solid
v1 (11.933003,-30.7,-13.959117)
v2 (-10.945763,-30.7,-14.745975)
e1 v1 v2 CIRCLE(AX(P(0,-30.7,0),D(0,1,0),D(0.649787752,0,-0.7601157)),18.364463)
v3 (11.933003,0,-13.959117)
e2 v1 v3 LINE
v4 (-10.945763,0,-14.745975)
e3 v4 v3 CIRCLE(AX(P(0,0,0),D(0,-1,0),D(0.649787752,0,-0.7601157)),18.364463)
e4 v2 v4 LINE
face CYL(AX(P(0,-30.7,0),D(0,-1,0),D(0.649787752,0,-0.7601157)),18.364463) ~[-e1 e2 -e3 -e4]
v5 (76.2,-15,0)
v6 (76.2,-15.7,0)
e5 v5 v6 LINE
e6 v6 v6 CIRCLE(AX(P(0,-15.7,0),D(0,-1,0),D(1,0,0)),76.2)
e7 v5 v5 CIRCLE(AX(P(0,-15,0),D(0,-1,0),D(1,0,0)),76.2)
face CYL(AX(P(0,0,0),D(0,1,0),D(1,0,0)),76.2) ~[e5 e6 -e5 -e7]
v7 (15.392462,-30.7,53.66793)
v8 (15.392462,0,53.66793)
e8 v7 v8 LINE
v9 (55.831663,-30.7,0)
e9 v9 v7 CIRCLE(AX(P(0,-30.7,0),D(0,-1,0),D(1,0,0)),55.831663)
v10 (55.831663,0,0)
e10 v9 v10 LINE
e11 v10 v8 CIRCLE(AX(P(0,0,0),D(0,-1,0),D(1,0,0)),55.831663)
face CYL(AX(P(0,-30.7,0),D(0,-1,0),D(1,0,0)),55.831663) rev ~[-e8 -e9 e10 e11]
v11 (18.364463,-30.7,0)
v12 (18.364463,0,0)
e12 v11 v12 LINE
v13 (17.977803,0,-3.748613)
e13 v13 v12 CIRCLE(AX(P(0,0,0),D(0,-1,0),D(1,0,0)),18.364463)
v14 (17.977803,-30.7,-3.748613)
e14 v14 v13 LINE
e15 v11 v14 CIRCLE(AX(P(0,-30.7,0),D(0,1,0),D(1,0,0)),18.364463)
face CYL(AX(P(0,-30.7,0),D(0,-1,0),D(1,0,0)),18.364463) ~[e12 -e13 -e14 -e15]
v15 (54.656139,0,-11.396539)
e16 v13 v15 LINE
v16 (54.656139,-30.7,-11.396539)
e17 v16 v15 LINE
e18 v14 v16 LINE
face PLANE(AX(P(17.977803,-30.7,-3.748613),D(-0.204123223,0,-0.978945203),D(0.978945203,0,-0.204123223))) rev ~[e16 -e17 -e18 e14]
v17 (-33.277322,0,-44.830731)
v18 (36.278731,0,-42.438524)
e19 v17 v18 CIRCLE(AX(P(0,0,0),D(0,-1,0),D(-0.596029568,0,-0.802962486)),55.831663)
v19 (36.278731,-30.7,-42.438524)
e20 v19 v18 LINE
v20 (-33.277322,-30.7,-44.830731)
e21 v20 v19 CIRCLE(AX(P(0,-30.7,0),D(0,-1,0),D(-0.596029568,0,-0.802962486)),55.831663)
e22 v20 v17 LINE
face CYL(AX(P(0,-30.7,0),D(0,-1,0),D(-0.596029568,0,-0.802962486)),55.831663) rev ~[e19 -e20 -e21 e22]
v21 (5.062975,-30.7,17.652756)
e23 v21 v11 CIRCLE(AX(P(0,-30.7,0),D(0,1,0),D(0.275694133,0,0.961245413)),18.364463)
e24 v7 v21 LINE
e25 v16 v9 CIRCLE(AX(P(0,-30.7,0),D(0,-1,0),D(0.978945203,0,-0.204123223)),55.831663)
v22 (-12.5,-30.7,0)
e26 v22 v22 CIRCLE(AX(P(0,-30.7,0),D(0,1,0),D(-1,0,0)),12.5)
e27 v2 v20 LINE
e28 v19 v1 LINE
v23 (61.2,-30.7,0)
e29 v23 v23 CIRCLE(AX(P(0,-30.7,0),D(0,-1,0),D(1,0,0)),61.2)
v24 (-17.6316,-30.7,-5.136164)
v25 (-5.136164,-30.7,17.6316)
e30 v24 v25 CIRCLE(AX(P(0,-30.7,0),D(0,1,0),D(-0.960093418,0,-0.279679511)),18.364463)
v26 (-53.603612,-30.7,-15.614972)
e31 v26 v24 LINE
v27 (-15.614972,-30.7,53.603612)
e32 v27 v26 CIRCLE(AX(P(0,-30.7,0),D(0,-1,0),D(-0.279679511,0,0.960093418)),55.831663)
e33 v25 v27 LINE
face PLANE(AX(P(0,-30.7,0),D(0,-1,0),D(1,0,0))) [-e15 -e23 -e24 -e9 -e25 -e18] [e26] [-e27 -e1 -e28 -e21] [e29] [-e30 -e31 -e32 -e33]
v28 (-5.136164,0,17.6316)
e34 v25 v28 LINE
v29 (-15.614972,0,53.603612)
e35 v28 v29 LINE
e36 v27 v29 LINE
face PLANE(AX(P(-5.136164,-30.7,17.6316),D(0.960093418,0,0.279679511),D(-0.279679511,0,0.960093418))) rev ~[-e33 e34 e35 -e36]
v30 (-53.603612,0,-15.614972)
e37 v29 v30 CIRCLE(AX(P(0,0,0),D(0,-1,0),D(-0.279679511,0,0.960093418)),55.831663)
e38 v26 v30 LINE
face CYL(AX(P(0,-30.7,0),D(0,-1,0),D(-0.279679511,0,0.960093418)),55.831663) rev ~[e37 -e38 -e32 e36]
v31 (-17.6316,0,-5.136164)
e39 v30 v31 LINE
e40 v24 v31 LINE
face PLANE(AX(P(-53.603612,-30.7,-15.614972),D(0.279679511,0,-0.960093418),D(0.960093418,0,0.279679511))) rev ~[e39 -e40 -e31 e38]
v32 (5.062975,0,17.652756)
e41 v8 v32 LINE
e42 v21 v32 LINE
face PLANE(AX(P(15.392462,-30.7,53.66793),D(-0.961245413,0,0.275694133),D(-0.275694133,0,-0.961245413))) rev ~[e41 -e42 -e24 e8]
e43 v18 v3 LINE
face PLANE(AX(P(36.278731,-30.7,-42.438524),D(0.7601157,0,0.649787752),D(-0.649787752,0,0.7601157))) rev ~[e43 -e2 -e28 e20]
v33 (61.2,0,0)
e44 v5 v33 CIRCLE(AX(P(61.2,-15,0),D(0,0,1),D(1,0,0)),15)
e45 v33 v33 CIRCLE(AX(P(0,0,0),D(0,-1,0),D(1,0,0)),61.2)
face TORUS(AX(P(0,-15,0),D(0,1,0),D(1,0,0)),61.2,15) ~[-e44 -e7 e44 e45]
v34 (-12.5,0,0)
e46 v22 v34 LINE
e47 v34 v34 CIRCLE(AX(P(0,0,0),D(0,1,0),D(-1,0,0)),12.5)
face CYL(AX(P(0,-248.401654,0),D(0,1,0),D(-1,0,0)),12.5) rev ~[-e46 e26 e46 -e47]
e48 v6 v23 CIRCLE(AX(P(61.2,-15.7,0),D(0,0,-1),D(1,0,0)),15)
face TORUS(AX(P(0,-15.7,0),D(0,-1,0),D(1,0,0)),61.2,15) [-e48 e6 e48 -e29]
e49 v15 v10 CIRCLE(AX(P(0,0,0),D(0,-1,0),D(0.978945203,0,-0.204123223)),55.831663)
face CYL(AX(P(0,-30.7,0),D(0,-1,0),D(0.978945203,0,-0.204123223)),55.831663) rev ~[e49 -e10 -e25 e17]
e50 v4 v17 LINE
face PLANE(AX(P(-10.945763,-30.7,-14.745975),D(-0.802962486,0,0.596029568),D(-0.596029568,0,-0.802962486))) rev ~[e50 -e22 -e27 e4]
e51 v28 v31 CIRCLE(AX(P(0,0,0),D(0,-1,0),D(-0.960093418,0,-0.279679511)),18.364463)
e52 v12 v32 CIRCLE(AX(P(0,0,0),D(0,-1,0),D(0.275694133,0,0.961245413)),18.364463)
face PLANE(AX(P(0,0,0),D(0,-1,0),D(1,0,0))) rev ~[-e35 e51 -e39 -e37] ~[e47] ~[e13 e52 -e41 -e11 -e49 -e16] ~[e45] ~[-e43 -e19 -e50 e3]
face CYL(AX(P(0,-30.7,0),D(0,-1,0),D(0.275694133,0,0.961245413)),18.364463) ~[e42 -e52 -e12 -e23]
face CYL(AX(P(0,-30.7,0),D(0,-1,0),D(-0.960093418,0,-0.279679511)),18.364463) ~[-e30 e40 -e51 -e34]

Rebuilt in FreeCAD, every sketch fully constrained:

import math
import FreeCAD as App
import Part
import Sketcher
from FreeCAD import Vector
Q = App.Units.Quantity


def edges_at(feature, points):
    """Names of the edges that pass closest to the given points."""
    edges = feature.Shape.Edges
    near = lambda p: min(range(len(edges)), key=lambda i: edges[i].distToShape(Part.Vertex(*p))[0])
    return sorted({f"Edge{near(p) + 1}" for p in points})

doc = App.newDocument("Part")
params = doc.addObject("Spreadsheet::Sheet", "Params")
for row, (alias, value) in enumerate([
    ("sketch1_diameter", "152.4 mm"),
    ("pad1_length", "30.7 mm"),
    ("sketch2_diameter", "25 mm"),
    ("hole_diameter", "25 mm"),
    ("pocket1_length", "50 mm"),
    ("fillet_radius", "15 mm"),
], start=1):
    params.set(f"A{row}", alias)
    params.set(f"B{row}", "=" + value)
    params.setAlias(f"B{row}", alias)

body = doc.addObject("PartDesign::Body", "Body")

sketch1 = body.newObject("Sketcher::SketchObject", "Sketch")
sketch1.AttachmentSupport = (doc.getObject("XZ_Plane"), [""])
sketch1.MapMode = "FlatFace"
sketch1.addGeometry(Part.Circle(Vector(0, 0, 0), Vector(0, 0, 1), 76), False)
sketch1.addConstraint([
    Sketcher.Constraint("Coincident", 0, 3, -1, 1),
    Sketcher.Constraint("Diameter", 0, Q("152.4 mm")),
])
sketch1.setExpression("Constraints[1]", "Params.sketch1_diameter")
pad1 = body.newObject("PartDesign::Pad", "Pad")
pad1.Profile = sketch1
pad1.setExpression("Length", "Params.pad1_length")

sketch2 = body.newObject("Sketcher::SketchObject", "Sketch001")
sketch2.AttachmentSupport = (doc.getObject("XZ_Plane"), [""])
sketch2.MapMode = "FlatFace"
sketch2.AttachmentOffset = App.Placement(Vector(0, 0, 30.7), App.Rotation())
sketch2.addGeometry(Part.Circle(Vector(0, 0, 0), Vector(0, 0, 1), 12), False)
sketch2.addConstraint([
    Sketcher.Constraint("Coincident", 0, 3, -1, 1),
    Sketcher.Constraint("Diameter", 0, Q("25 mm")),
])
sketch2.setExpression("Constraints[1]", "Params.sketch2_diameter")
doc.recompute()
hole = body.newObject("PartDesign::Hole", "Hole")
hole.Profile = sketch2
hole.ThreadType = "None"
hole.setExpression("Diameter", "Params.hole_diameter")
hole.DepthType = "ThroughAll"

sketch3 = body.newObject("Sketcher::SketchObject", "Sketch002")
sketch3.AttachmentSupport = (doc.getObject("XZ_Plane"), [""])
sketch3.MapMode = "FlatFace"
sketch3.AttachmentOffset = App.Placement(Vector(0, 0, 30.7), App.Rotation())
sketch3.addGeometry([
    Part.ArcOfCircle(Part.Circle(Vector(0, 0, 0), Vector(0, 0, 1), 18.4), math.radians(106), math.radians(196)),
    Part.LineSegment(Vector(-5.1, 17.6, 0), Vector(-15.6, 53.6, 0)),
    Part.ArcOfCircle(Part.Circle(Vector(0, 0, 0), Vector(0, 0, 1), 55.8), math.radians(106), math.radians(196)),
    Part.LineSegment(Vector(-53.6, -15.6, 0), Vector(-17.6, -5.1, 0)),
    Part.LineSegment(Vector(15.4, 53.7, 0), Vector(5.1, 17.7, 0)),
    Part.ArcOfCircle(Part.Circle(Vector(0, 0, 0), Vector(0, 0, 1), 18.4), math.radians(0), math.radians(74)),
    Part.ArcOfCircle(Part.Circle(Vector(0, 0, 0), Vector(0, 0, 1), 18.4), math.radians(-11.78), math.radians(0)),
    Part.LineSegment(Vector(18, -3.7, 0), Vector(54.7, -11.4, 0)),
    Part.ArcOfCircle(Part.Circle(Vector(0, 0, 0), Vector(0, 0, 1), 55.8), math.radians(-11.78), math.radians(0)),
    Part.ArcOfCircle(Part.Circle(Vector(0, 0, 0), Vector(0, 0, 1), 55.8), math.radians(0), math.radians(74)),
    Part.LineSegment(Vector(36.3, -42.4, 0), Vector(11.9, -14, 0)),
    Part.ArcOfCircle(Part.Circle(Vector(0, 0, 0), Vector(0, 0, 1), 18.4), math.radians(-127), math.radians(-49)),
    Part.LineSegment(Vector(-10.9, -14.7, 0), Vector(-33.3, -44.8, 0)),
    Part.ArcOfCircle(Part.Circle(Vector(0, 0, 0), Vector(0, 0, 1), 55.8), math.radians(-127), math.radians(-49)),
], False)
sketch3.addConstraint([
    Sketcher.Constraint("Coincident", 0, 1, 1, 1),
    Sketcher.Constraint("Coincident", 1, 2, 2, 1),
    Sketcher.Constraint("Coincident", 2, 2, 3, 1),
    Sketcher.Constraint("Coincident", 3, 2, 0, 2),
    Sketcher.Constraint("Coincident", 4, 2, 5, 2),
    Sketcher.Constraint("Tangent", 5, 1, 6, 2),
    Sketcher.Constraint("Coincident", 6, 1, 7, 1),
    Sketcher.Constraint("Coincident", 7, 2, 8, 1),
    Sketcher.Constraint("Tangent", 8, 2, 9, 1),
    Sketcher.Constraint("Coincident", 9, 2, 4, 1),
    Sketcher.Constraint("Coincident", 10, 2, 11, 2),
    Sketcher.Constraint("Coincident", 11, 1, 12, 1),
    Sketcher.Constraint("Coincident", 12, 2, 13, 1),
    Sketcher.Constraint("Coincident", 13, 2, 10, 1),
    Sketcher.Constraint("Coincident", 0, 3, -1, 1),
    Sketcher.Constraint("Coincident", 2, 3, -1, 1),
    Sketcher.Constraint("Coincident", 5, 3, -1, 1),
    Sketcher.Constraint("Coincident", 8, 3, -1, 1),
    Sketcher.Constraint("Coincident", 11, 3, -1, 1),
    Sketcher.Constraint("Coincident", 13, 3, -1, 1),
    Sketcher.Constraint("Equal", 0, 5),
    Sketcher.Constraint("Equal", 5, 6),
    Sketcher.Constraint("Equal", 2, 8),
    Sketcher.Constraint("Equal", 8, 9),
    Sketcher.Constraint("Equal", 6, 11),
    Sketcher.Constraint("Equal", 9, 13),
    Sketcher.Constraint("PointOnObject", 5, 1, -1),
    Sketcher.Constraint("PointOnObject", 8, 2, -1),
    Sketcher.Constraint("Perpendicular", 1, 3),
    Sketcher.Constraint("Radius", 0, Q("18.364463 mm")),
    Sketcher.Constraint("Radius", 2, Q("55.831663 mm")),
    Sketcher.Constraint("DistanceX", 9, 2, 5, 1, Q("2.972001 mm")),
    Sketcher.Constraint("DistanceY", -1, 1, 0, 1, Q("17.6316 mm")),
    Sketcher.Constraint("DistanceX", 3, 2, -1, 1, Q("17.6316 mm")),
    Sketcher.Constraint("DistanceX", 10, 2, 6, 1, Q("6.0448 mm")),
    Sketcher.Constraint("DistanceX", -1, 1, 7, 2, Q("54.656139 mm")),
    Sketcher.Constraint("DistanceY", 12, 2, -1, 1, Q("44.830731 mm")),
    Sketcher.Constraint("DistanceX", -1, 1, 13, 2, Q("36.278731 mm")),
    Sketcher.Constraint("DistanceX", 1, 2, 0, 1, Q("10.478808 mm")),
    Sketcher.Constraint("DistanceX", 0, 1, 4, 2, Q("10.199139 mm")),
    Sketcher.Constraint("DistanceX", 6, 1, 5, 1, Q("0.38666 mm")),
    Sketcher.Constraint("DistanceY", 11, 1, 3, 2, Q("9.609811 mm")),
])
pocket1 = body.newObject("PartDesign::Pocket", "Pocket")
pocket1.Profile = sketch3
pocket1.setExpression("Length", "Params.pocket1_length")
doc.recompute()

fillet = body.newObject("PartDesign::Fillet", "Fillet")
fillet.Base = (pocket1, edges_at(pocket1, [(-76.2, -30.7, 0), (76.2, -15.35, 0), (-76.2, 0, 0)]))
fillet.setExpression("Radius", "Params.fillet_radius")

doc.recompute()
